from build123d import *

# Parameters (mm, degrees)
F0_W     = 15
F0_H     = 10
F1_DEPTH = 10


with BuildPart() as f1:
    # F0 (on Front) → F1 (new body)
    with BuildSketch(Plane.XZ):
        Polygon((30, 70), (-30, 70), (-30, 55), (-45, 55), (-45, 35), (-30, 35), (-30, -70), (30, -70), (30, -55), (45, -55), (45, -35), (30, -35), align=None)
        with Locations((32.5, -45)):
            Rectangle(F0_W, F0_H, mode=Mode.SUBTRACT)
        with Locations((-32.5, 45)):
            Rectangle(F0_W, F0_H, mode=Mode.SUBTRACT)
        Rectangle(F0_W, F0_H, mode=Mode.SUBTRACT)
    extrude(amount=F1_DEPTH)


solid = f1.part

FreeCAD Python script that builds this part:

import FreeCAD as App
import Part
import Sketcher
Q = App.Units.Quantity

doc = App.newDocument("Part")
body = doc.addObject("PartDesign::Body", "Body")

# Sketch on XZ plane
sketch1 = body.newObject("Sketcher::SketchObject", "Sketch")
sketch1.AttachmentSupport = (doc.getObject("XZ_Plane"), [""])
sketch1.MapMode = "FlatFace"
sketch1.addGeometry([
    Part.LineSegment(App.Vector(30, 70, 0), App.Vector(-30, 70, 0)),  # 0
    Part.LineSegment(App.Vector(-30, 70, 0), App.Vector(-30, 55, 0)),  # 1
    Part.LineSegment(App.Vector(-30, 55, 0), App.Vector(-45, 55, 0)),  # 2
    Part.LineSegment(App.Vector(-45, 55, 0), App.Vector(-45, 35, 0)),  # 3
    Part.LineSegment(App.Vector(-45, 35, 0), App.Vector(-30, 35, 0)),  # 4
    Part.LineSegment(App.Vector(-30, 35, 0), App.Vector(-30, -70, 0)),  # 5
    Part.LineSegment(App.Vector(-30, -70, 0), App.Vector(30, -70, 0)),  # 6
    Part.LineSegment(App.Vector(30, -70, 0), App.Vector(30, -55, 0)),  # 7
    Part.LineSegment(App.Vector(30, -55, 0), App.Vector(45, -55, 0)),  # 8
    Part.LineSegment(App.Vector(45, -55, 0), App.Vector(45, -35, 0)),  # 9
    Part.LineSegment(App.Vector(45, -35, 0), App.Vector(30, -35, 0)),  # 10
    Part.LineSegment(App.Vector(30, -35, 0), App.Vector(30, 70, 0)),  # 11
    Part.LineSegment(App.Vector(40, -50, 0), App.Vector(25, -50, 0)),  # 12
    Part.LineSegment(App.Vector(25, -50, 0), App.Vector(25, -40, 0)),  # 13
    Part.LineSegment(App.Vector(25, -40, 0), App.Vector(40, -40, 0)),  # 14
    Part.LineSegment(App.Vector(40, -40, 0), App.Vector(40, -50, 0)),  # 15
    Part.LineSegment(App.Vector(-25, 40, 0), App.Vector(-40, 40, 0)),  # 16
    Part.LineSegment(App.Vector(-40, 40, 0), App.Vector(-40, 50, 0)),  # 17
    Part.LineSegment(App.Vector(-40, 50, 0), App.Vector(-25, 50, 0)),  # 18
    Part.LineSegment(App.Vector(-25, 50, 0), App.Vector(-25, 40, 0)),  # 19
    Part.LineSegment(App.Vector(8, -5, 0), App.Vector(-8, -5, 0)),  # 20
    Part.LineSegment(App.Vector(-8, -5, 0), App.Vector(-8, 5, 0)),  # 21
    Part.LineSegment(App.Vector(-8, 5, 0), App.Vector(8, 5, 0)),  # 22
    Part.LineSegment(App.Vector(8, 5, 0), App.Vector(8, -5, 0)),  # 23
], False)
sketch1.addConstraint([
    Sketcher.Constraint("Coincident", 0, 2, 1, 1),
    Sketcher.Constraint("Coincident", 1, 2, 2, 1),
    Sketcher.Constraint("Coincident", 2, 2, 3, 1),
    Sketcher.Constraint("Coincident", 3, 2, 4, 1),
    Sketcher.Constraint("Coincident", 4, 2, 5, 1),
    Sketcher.Constraint("Coincident", 5, 2, 6, 1),
    Sketcher.Constraint("Coincident", 6, 2, 7, 1),
    Sketcher.Constraint("Coincident", 7, 2, 8, 1),
    Sketcher.Constraint("Coincident", 8, 2, 9, 1),
    Sketcher.Constraint("Coincident", 9, 2, 10, 1),
    Sketcher.Constraint("Coincident", 10, 2, 11, 1),
    Sketcher.Constraint("Coincident", 11, 2, 0, 1),
    Sketcher.Constraint("Coincident", 12, 2, 13, 1),
    Sketcher.Constraint("Coincident", 13, 2, 14, 1),
    Sketcher.Constraint("Coincident", 14, 2, 15, 1),
    Sketcher.Constraint("Coincident", 15, 2, 12, 1),
    Sketcher.Constraint("Coincident", 16, 2, 17, 1),
    Sketcher.Constraint("Coincident", 17, 2, 18, 1),
    Sketcher.Constraint("Coincident", 18, 2, 19, 1),
    Sketcher.Constraint("Coincident", 19, 2, 16, 1),
    Sketcher.Constraint("Coincident", 20, 2, 21, 1),
    Sketcher.Constraint("Coincident", 21, 2, 22, 1),
    Sketcher.Constraint("Coincident", 22, 2, 23, 1),
    Sketcher.Constraint("Coincident", 23, 2, 20, 1),
    Sketcher.Constraint("Horizontal", 0),
    Sketcher.Constraint("Vertical", 1),
    Sketcher.Constraint("Horizontal", 2),
    Sketcher.Constraint("Vertical", 3),
    Sketcher.Constraint("Horizontal", 4),
    Sketcher.Constraint("Vertical", 5),
    Sketcher.Constraint("Horizontal", 6),
    Sketcher.Constraint("Vertical", 7),
    Sketcher.Constraint("Horizontal", 8),
    Sketcher.Constraint("Vertical", 9),
    Sketcher.Constraint("Horizontal", 10),
    Sketcher.Constraint("Vertical", 11),
    Sketcher.Constraint("Horizontal", 12),
    Sketcher.Constraint("Vertical", 13),
    Sketcher.Constraint("Horizontal", 14),
    Sketcher.Constraint("Vertical", 15),
    Sketcher.Constraint("Horizontal", 16),
    Sketcher.Constraint("Vertical", 17),
    Sketcher.Constraint("Horizontal", 18),
    Sketcher.Constraint("Vertical", 19),
    Sketcher.Constraint("Horizontal", 20),
    Sketcher.Constraint("Vertical", 21),
    Sketcher.Constraint("Horizontal", 22),
    Sketcher.Constraint("Vertical", 23),
    Sketcher.Constraint("Symmetric", 0, 2, 6, 2, -1, 1),
    Sketcher.Constraint("Symmetric", 2, 2, 8, 2, -1, 1),
    Sketcher.Constraint("Symmetric", 4, 2, 10, 2, -1, 1),
    Sketcher.Constraint("Symmetric", 14, 2, 16, 2, -1, 1),
    Sketcher.Constraint("Symmetric", 12, 2, 18, 2, -1, 1),
    Sketcher.Constraint("Symmetric", 20, 2, 22, 2, -1, 1),
    Sketcher.Constraint("Vertical", 1, 2, 4, 2),
    Sketcher.Constraint("Equal", 10, 12),
    Sketcher.Constraint("Equal", 18, 20),
    Sketcher.Constraint("Equal", 22, 1),
    Sketcher.Constraint("Equal", 19, 21),
    Sketcher.Constraint("DistanceX", 0, 2, 0, 1, Q("60 mm")),
    Sketcher.Constraint("DistanceX", 2, 2, 2, 1, Q("15 mm")),
    Sketcher.Constraint("DistanceY", 3, 2, 3, 1, Q("20 mm")),
    Sketcher.Constraint("DistanceY", 5, 2, 5, 1, Q("105 mm")),
    Sketcher.Constraint("DistanceY", 13, 1, 13, 2, Q("10 mm")),
    Sketcher.Constraint("DistanceX", -1, 1, 12, 2, Q("25 mm")),
    Sketcher.Constraint("DistanceY", 12, 2, -1, 1, Q("50 mm")),
])
pad1 = body.newObject("PartDesign::Pad", "Pad")
pad1.Profile = sketch1
pad1.Length = 10

doc.recompute()
